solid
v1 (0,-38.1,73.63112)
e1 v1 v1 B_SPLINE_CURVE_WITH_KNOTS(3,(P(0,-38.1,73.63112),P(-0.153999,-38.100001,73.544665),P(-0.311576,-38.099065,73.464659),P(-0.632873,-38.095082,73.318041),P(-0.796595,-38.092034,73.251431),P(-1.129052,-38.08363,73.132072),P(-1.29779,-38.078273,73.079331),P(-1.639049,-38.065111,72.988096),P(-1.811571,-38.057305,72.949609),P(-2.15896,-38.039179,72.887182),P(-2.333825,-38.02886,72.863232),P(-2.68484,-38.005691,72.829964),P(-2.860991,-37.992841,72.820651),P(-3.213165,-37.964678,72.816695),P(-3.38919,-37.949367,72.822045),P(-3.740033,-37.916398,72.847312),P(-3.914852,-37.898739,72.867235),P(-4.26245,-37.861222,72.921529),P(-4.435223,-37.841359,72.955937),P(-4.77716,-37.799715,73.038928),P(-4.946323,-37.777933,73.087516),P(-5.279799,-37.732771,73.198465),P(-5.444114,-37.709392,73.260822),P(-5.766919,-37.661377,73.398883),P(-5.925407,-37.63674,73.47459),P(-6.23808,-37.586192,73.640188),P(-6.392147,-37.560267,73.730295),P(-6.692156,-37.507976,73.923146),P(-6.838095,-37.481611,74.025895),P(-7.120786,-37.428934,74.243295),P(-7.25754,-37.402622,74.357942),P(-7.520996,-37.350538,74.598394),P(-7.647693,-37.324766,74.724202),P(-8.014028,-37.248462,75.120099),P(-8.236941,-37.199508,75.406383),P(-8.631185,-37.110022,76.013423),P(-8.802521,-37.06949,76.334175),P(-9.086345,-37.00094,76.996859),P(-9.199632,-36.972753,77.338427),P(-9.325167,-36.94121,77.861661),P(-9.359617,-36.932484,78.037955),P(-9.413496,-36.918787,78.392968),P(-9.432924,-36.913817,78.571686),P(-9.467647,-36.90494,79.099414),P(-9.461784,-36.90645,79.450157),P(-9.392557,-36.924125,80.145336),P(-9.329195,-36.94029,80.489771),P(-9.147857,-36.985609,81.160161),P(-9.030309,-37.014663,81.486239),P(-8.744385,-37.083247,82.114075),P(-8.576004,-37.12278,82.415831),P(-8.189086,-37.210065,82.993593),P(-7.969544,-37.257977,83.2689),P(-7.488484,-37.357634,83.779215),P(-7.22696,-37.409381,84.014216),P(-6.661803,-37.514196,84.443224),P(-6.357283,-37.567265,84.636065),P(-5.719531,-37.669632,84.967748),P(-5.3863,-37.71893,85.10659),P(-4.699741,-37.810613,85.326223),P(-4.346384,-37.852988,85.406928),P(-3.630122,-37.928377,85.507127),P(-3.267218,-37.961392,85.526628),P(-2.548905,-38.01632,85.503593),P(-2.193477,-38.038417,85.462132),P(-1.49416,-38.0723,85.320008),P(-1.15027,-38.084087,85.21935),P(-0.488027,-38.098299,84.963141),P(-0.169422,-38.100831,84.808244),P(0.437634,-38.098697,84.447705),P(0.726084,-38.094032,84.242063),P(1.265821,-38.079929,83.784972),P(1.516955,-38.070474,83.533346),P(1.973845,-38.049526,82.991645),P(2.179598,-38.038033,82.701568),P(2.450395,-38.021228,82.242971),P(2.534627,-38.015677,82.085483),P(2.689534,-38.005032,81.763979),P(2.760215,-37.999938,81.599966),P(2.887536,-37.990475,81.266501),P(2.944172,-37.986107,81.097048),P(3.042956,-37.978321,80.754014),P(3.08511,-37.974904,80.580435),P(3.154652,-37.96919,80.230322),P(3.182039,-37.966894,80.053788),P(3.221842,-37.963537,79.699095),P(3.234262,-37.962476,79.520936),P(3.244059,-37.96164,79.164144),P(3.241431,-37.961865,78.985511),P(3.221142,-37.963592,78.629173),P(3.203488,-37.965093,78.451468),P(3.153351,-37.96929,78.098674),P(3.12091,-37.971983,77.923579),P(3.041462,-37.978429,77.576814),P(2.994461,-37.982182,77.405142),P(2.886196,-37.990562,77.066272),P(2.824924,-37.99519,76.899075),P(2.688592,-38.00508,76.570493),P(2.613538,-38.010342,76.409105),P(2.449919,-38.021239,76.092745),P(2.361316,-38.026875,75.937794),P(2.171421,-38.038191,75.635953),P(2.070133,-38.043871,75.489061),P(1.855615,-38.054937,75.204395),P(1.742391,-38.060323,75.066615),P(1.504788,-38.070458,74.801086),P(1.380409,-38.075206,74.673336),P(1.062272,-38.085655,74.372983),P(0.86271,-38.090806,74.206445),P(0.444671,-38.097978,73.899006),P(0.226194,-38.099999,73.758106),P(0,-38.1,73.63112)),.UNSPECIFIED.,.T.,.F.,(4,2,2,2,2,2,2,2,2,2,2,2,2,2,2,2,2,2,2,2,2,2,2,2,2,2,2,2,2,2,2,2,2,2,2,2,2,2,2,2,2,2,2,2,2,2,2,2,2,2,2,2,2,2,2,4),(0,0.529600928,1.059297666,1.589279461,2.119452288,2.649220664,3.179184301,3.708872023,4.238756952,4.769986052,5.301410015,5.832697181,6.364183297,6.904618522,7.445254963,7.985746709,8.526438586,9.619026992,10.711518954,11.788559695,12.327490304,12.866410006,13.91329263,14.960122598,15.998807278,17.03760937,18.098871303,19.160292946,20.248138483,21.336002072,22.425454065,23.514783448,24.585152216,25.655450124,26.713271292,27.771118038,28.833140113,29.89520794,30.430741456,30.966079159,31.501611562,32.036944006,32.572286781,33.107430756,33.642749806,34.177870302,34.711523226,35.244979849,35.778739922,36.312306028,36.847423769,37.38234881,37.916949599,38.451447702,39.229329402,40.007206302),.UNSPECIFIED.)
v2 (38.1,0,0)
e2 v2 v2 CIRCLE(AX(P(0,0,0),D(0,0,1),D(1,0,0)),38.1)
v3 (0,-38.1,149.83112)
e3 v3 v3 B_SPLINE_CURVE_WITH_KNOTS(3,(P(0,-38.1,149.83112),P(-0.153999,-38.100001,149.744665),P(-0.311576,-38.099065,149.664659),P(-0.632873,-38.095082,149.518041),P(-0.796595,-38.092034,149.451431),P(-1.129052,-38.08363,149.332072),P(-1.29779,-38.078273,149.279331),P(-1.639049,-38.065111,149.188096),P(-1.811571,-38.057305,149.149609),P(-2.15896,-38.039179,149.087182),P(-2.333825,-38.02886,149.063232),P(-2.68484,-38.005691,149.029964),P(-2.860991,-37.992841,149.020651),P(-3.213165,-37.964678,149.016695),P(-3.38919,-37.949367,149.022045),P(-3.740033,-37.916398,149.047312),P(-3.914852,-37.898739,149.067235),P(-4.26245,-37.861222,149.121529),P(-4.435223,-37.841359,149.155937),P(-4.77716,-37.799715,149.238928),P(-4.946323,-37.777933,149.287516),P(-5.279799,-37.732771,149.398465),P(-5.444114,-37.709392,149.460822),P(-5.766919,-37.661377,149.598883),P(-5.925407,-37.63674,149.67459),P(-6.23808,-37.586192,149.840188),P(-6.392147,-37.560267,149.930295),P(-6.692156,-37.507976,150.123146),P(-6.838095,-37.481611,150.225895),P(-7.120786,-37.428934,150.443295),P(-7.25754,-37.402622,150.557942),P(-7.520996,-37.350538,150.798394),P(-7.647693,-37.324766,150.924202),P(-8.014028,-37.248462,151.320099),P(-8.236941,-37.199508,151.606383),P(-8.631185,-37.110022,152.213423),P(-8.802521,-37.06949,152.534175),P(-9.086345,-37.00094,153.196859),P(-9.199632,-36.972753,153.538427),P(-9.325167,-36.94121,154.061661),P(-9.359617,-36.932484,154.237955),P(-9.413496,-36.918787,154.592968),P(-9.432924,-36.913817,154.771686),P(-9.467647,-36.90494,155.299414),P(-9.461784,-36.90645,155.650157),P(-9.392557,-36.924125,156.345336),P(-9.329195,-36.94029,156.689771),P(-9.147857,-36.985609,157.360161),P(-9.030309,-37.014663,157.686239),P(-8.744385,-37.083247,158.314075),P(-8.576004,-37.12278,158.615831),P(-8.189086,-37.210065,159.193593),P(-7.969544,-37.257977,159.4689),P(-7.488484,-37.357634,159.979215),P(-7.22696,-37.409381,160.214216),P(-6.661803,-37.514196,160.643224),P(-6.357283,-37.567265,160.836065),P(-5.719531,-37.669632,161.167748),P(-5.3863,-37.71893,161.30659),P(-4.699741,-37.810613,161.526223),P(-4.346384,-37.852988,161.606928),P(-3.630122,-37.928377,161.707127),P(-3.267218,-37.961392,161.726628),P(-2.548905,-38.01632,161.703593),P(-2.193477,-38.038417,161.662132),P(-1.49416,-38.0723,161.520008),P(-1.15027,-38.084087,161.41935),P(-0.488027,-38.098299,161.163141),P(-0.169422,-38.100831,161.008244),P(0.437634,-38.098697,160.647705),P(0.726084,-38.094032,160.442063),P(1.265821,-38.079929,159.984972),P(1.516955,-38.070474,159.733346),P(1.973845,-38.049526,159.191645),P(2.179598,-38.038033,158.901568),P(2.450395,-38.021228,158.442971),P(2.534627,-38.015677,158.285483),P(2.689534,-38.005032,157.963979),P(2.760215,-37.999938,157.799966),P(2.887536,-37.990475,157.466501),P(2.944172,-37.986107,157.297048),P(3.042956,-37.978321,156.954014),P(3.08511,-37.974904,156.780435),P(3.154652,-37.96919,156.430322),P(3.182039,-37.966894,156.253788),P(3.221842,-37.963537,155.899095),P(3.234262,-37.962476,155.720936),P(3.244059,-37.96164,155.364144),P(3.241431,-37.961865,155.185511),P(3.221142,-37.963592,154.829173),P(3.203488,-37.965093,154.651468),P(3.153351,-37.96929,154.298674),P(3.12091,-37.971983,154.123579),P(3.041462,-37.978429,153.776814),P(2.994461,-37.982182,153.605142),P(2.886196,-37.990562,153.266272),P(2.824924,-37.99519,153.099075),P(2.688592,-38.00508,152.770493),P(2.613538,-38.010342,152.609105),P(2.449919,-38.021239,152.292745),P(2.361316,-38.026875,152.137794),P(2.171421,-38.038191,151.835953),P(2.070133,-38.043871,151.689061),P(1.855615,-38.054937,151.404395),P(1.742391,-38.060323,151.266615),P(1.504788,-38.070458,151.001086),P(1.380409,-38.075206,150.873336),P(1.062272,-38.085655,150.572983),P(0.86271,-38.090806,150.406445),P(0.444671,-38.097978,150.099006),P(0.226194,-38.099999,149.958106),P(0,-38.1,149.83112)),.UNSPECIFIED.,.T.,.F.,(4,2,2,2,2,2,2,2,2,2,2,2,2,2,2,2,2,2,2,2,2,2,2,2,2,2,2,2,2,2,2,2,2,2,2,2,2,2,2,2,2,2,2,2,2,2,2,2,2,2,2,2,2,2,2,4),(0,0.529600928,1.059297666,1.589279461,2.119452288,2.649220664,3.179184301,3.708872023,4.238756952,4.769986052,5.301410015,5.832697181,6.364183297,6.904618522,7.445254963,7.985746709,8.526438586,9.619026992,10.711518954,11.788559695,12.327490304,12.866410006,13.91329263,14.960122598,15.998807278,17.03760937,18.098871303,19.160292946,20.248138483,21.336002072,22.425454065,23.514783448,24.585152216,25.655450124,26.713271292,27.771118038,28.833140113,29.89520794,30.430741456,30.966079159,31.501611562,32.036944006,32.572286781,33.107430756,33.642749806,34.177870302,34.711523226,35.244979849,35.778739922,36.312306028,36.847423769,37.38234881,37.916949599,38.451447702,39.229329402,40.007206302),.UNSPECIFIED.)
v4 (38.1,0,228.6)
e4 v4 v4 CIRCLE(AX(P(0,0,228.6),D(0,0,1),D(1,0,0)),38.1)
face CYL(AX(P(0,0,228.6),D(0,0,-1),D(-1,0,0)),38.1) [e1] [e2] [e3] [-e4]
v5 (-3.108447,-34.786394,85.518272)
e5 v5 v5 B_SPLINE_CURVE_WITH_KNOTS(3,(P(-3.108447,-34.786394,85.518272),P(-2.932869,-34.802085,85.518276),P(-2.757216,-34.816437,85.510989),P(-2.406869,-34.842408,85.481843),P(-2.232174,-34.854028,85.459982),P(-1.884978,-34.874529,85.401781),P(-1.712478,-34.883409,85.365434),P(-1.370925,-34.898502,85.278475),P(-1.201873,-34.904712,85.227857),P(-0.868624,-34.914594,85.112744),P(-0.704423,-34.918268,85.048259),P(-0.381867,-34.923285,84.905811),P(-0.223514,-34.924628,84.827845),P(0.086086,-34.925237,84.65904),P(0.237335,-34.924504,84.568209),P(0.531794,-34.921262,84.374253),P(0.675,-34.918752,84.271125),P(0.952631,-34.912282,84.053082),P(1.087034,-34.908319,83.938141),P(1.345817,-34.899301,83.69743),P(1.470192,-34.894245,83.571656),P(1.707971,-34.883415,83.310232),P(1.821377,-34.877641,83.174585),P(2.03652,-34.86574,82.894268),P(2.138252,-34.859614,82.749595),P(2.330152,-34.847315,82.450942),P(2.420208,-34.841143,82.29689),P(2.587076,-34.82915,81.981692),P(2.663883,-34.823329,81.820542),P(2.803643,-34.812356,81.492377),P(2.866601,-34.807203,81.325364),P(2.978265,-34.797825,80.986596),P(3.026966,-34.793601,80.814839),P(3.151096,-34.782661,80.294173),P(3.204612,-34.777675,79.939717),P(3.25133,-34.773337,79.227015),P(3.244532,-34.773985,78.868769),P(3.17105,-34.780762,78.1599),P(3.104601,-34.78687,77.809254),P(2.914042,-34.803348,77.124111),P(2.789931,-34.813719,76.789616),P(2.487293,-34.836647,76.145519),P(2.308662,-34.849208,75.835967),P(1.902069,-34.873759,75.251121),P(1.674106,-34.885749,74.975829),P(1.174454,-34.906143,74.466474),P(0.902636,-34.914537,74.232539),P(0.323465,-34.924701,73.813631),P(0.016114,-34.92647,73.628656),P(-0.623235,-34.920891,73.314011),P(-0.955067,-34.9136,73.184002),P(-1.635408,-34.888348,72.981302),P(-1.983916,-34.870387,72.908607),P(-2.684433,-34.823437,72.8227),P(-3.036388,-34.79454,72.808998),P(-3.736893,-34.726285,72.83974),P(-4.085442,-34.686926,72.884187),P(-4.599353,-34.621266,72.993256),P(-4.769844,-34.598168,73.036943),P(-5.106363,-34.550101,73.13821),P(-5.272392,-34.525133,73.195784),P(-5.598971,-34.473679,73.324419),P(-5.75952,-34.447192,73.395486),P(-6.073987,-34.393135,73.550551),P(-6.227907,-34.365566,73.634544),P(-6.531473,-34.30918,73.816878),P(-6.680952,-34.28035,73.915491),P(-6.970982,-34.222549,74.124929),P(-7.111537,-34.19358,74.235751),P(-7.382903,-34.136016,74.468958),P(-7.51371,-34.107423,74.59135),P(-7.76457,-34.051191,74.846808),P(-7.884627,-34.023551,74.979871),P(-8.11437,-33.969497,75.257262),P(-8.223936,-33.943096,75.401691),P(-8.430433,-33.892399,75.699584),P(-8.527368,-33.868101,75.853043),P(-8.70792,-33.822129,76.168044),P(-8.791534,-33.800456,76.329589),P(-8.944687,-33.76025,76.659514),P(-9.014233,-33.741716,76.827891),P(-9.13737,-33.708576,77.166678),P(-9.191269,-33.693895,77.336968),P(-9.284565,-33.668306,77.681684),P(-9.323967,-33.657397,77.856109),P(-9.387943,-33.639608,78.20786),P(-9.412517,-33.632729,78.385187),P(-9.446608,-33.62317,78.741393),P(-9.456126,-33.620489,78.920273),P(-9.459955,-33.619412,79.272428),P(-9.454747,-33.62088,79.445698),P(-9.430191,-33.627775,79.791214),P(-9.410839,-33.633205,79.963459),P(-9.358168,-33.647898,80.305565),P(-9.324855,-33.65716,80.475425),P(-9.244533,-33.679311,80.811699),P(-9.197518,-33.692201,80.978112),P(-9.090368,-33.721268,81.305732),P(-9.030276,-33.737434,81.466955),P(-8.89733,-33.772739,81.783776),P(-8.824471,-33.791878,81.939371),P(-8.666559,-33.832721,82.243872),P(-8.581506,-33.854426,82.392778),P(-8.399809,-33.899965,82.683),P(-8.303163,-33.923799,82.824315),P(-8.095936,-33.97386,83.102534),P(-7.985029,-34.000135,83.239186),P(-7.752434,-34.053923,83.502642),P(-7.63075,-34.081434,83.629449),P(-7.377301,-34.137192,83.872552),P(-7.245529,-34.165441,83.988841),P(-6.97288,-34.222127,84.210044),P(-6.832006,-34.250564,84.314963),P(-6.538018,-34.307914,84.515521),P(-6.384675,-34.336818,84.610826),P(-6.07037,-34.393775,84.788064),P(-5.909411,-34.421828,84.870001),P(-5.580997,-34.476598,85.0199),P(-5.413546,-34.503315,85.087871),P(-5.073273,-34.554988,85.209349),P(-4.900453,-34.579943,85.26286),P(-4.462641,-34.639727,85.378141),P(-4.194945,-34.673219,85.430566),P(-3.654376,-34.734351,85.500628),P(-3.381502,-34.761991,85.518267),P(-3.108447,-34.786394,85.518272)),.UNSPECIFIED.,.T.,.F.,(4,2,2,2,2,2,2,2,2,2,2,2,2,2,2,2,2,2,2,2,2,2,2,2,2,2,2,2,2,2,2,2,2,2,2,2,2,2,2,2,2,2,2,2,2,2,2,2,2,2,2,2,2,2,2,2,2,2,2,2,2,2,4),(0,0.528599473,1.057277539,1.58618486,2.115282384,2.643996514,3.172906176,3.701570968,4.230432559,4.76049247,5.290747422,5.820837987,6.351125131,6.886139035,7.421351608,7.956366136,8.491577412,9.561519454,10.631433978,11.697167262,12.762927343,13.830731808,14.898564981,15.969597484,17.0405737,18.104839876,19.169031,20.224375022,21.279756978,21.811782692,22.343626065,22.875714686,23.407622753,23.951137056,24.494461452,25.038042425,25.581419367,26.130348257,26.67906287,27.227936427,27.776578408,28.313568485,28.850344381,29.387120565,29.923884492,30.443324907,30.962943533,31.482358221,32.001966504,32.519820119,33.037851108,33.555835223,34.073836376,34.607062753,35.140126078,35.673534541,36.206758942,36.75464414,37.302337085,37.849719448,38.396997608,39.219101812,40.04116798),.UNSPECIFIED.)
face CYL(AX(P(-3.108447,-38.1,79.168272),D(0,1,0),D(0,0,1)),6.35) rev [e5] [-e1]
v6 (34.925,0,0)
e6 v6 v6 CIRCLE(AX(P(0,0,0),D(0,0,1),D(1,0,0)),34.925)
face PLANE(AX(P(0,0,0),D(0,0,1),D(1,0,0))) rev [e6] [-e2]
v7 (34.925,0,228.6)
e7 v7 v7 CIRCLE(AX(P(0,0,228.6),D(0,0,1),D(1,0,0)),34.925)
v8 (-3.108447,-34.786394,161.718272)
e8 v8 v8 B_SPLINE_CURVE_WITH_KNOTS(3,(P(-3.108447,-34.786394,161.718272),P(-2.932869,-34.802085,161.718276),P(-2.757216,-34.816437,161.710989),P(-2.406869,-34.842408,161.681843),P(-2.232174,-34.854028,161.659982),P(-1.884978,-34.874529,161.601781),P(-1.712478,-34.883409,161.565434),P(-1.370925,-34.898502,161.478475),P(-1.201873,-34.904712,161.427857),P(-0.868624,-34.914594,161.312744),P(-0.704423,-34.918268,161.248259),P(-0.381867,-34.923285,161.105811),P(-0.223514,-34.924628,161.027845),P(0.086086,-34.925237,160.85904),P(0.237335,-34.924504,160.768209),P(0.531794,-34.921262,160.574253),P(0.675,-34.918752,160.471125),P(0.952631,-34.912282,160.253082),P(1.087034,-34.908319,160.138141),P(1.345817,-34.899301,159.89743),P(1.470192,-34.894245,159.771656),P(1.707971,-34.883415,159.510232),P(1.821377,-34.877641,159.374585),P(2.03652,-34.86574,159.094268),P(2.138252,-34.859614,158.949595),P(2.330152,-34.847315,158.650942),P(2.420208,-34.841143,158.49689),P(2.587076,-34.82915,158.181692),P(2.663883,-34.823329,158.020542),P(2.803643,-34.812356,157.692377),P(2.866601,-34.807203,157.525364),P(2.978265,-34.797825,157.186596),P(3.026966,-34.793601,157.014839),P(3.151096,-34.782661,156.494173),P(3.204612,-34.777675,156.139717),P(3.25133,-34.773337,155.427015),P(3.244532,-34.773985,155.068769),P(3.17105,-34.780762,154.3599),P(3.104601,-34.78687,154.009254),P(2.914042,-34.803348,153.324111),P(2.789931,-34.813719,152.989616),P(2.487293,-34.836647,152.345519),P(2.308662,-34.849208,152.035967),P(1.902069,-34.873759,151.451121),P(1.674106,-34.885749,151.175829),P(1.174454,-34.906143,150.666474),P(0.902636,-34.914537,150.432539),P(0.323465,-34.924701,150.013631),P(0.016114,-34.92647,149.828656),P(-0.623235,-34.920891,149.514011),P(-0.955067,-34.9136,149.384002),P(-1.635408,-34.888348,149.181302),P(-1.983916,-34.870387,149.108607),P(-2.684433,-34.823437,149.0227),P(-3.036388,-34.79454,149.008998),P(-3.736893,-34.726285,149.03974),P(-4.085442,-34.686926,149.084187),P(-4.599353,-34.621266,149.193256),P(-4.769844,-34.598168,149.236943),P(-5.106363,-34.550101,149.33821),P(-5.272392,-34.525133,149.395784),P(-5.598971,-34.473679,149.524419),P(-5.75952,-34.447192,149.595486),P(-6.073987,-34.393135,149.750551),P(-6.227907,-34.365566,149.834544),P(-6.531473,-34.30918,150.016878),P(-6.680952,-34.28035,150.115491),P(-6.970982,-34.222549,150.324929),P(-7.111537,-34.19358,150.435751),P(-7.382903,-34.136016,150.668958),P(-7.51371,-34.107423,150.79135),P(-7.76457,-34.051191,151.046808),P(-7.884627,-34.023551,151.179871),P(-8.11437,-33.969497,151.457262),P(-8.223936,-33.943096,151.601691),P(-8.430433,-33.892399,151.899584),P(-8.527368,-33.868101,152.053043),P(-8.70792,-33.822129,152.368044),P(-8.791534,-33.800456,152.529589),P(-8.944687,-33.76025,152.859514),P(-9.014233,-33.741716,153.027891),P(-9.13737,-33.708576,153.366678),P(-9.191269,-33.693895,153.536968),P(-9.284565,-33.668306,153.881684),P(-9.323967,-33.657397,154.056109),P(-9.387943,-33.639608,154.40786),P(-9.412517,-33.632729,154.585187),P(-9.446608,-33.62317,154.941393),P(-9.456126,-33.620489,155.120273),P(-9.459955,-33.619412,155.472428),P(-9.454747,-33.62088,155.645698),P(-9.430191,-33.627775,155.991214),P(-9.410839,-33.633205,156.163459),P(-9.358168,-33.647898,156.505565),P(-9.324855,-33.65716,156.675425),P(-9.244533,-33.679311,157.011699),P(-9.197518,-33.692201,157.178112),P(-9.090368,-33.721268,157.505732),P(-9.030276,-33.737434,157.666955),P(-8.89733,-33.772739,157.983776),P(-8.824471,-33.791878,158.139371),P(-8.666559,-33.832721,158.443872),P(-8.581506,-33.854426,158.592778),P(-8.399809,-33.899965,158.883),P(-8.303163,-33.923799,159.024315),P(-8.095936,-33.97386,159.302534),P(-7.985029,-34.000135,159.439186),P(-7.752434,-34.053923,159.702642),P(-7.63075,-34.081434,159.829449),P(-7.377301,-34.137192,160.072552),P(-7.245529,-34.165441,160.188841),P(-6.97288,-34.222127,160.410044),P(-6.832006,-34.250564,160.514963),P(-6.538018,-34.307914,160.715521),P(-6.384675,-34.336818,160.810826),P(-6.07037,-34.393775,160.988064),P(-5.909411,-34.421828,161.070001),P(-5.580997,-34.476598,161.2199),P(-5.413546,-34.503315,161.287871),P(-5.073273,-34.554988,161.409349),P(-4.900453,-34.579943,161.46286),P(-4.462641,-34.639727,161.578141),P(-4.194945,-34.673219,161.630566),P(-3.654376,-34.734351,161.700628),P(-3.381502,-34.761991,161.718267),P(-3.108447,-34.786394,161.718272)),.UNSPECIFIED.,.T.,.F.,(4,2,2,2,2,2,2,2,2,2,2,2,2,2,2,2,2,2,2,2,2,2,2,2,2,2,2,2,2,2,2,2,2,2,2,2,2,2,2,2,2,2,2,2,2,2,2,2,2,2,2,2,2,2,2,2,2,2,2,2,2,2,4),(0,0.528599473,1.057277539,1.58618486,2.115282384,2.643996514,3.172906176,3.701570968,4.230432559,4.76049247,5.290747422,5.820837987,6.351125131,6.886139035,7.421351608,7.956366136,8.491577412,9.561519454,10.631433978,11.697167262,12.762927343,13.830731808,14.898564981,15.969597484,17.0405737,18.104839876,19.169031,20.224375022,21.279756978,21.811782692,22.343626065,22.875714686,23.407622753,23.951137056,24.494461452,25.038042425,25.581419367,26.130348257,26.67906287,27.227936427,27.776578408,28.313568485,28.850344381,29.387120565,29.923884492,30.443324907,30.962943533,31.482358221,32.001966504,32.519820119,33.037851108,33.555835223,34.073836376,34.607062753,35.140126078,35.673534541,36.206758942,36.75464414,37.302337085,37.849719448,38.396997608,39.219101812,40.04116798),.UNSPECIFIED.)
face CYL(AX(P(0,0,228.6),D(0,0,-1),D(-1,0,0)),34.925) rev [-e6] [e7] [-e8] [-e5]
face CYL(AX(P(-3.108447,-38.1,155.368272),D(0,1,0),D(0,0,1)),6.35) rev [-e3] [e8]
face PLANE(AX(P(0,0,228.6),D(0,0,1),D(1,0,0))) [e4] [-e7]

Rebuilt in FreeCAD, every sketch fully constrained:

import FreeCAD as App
import Part
import Sketcher

V = App.Vector
Q = App.Units.Quantity

doc = App.newDocument("Part")
body = doc.addObject("PartDesign::Body", "Body")

sketch1 = doc.addObject("Sketcher::SketchObject", "Sketch")
body.addObject(sketch1)
sketch1.AttachmentSupport = (doc.XY_Plane, [""])
sketch1.MapMode = "FlatFace"
sketch1.addGeometry(Part.Circle(V(0, 0, 0), V(0, 0, 1), 38.1), False)
sketch1.addGeometry(Part.Circle(V(0, 0, 0), V(0, 0, 1), 34.925), False)
sketch1.addConstraint(Sketcher.Constraint("Coincident", 0, 3, -1, 1))
sketch1.addConstraint(Sketcher.Constraint("Coincident", 1, 3, -1, 1))
sketch1.addConstraint(Sketcher.Constraint("Diameter", 0, Q("3 in")))
sketch1.addConstraint(Sketcher.Constraint("Diameter", 1, Q("2.75 in")))
pad1 = doc.addObject("PartDesign::Pad", "Pad")
body.addObject(pad1)
pad1.Profile = sketch1
pad1.Length = Q("9 in")

sketch2 = doc.addObject("Sketcher::SketchObject", "Sketch001")
body.addObject(sketch2)
sketch2.AttachmentSupport = (doc.XZ_Plane, [""])
sketch2.MapMode = "FlatFace"
sketch2.addGeometry(Part.Circle(V(-3.108447, 79.168272, 0), V(0, 0, 1), 6.35), False)
sketch2.addGeometry(Part.Circle(V(-3.108447, 155.368272, 0), V(0, 0, 1), 6.35), False)
sketch2.addConstraint(Sketcher.Constraint("Equal", 0, 1))
sketch2.addConstraint(Sketcher.Constraint("Vertical", 0, 3, 1, 3))
sketch2.addConstraint(Sketcher.Constraint("Diameter", 0, Q("0.5 in")))
sketch2.addConstraint(Sketcher.Constraint("DistanceY", 0, 3, 1, 3, Q("3 in")))
sketch2.addConstraint(Sketcher.Constraint("DistanceX", 0, 3, -1, 1, 3.108447))
sketch2.addConstraint(Sketcher.Constraint("DistanceY", -1, 1, 0, 3, 79.168272))
pocket1 = doc.addObject("PartDesign::Pocket", "Pocket")
body.addObject(pocket1)
pocket1.Profile = sketch2
pocket1.Type = "ThroughAll"
pocket1.Reversed = True

doc.recompute()
